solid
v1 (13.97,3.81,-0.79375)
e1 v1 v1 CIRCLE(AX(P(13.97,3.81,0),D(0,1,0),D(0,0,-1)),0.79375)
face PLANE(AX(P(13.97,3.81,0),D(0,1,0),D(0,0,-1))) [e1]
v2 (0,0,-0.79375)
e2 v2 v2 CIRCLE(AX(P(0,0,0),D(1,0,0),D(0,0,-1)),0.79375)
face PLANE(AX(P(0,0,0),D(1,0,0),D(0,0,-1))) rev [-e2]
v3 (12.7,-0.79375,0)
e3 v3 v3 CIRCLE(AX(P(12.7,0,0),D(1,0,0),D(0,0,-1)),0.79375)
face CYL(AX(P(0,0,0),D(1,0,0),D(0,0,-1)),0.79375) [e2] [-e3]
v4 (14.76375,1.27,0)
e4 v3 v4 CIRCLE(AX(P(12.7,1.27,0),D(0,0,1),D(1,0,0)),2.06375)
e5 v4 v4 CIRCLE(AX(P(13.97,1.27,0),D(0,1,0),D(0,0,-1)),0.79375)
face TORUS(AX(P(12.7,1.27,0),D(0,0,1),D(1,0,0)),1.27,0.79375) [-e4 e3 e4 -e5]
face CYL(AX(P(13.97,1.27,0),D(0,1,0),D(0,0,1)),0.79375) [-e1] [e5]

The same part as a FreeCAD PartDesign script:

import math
import FreeCAD as App
import Part
import Sketcher

V = App.Vector
Q = App.Units.Quantity

doc = App.newDocument("Part")
body = doc.addObject("PartDesign::Body", "Body")

sketch1 = doc.addObject("Sketcher::SketchObject", "Sketch")
body.addObject(sketch1)
sketch1.AttachmentSupport = (doc.YZ_Plane, [""])
sketch1.MapMode = "FlatFace"
sketch1.addGeometry(Part.Circle(V(0, 0, 0), V(0, 0, 1), 0.79375), False)
sketch1.addConstraint([
    Sketcher.Constraint("Coincident", 0, 3, -1, 1),
    Sketcher.Constraint("Diameter", 0, Q("0.0625 in")),
])

sketch2 = doc.addObject("Sketcher::SketchObject", "Sketch001")
body.addObject(sketch2)
sketch2.AttachmentSupport = (doc.XY_Plane, [""])
sketch2.MapMode = "FlatFace"
sketch2.addGeometry([
    Part.LineSegment(V(0, 0, 0), V(12.7, 0, 0)),
    Part.ArcOfCircle(Part.Circle(V(12.7, 1.27, 0), V(0, 0, 1), 1.27), math.radians(-90), math.radians(0)),
    Part.LineSegment(V(13.97, 1.27, 0), V(13.97, 3.81, 0)),
], False)
sketch2.addConstraint([
    Sketcher.Constraint("Tangent", 0, 2, 1, 1),
    Sketcher.Constraint("Tangent", 1, 2, 2, 1),
    Sketcher.Constraint("Horizontal", 0),
    Sketcher.Constraint("Vertical", 2),
    Sketcher.Constraint("Coincident", 0, 1, -1, 1),
    Sketcher.Constraint("Radius", 1, Q("0.05 in")),
    Sketcher.Constraint("DistanceX", 0, 1, 0, 2, Q("0.5 in")),
    Sketcher.Constraint("DistanceY", 2, 1, 2, 2, Q("0.1 in")),
])
doc.recompute()

additivepipe = doc.addObject("PartDesign::AdditivePipe", "AdditivePipe")
body.addObject(additivepipe)
additivepipe.Profile = sketch1
additivepipe.Spine = (sketch2, ["Edge1", "Edge2", "Edge3"])

doc.recompute()
